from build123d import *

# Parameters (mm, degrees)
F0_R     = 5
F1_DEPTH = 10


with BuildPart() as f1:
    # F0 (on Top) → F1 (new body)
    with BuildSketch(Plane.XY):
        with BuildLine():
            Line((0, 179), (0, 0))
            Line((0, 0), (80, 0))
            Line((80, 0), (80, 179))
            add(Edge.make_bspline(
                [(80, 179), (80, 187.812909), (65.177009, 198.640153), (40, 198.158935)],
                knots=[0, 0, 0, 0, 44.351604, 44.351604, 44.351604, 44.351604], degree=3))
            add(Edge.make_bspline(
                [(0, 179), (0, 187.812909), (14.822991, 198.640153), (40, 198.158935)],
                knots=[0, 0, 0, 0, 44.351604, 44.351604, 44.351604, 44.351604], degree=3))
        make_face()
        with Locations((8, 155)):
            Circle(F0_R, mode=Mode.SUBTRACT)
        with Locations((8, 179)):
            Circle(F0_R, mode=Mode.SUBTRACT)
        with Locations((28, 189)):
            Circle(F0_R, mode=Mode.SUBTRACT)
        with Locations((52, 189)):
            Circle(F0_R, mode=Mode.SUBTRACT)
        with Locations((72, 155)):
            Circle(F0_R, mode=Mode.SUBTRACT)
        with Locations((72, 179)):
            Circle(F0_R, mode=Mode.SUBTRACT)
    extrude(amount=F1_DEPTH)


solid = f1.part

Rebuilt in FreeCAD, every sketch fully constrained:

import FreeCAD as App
import Part
import Sketcher
from FreeCAD import Vector

doc = App.newDocument("Part")
body = doc.addObject("PartDesign::Body", "Body")

# Sketch on XY plane
sketch1 = body.newObject("Sketcher::SketchObject", "Sketch")
sketch1.AttachmentSupport = (doc.getObject("XY_Plane"), [""])
sketch1.MapMode = "FlatFace"
sketch1.addGeometry([
    Part.LineSegment(Vector(0, 179, 0), Vector(0, 0, 0)),  # 0
    Part.LineSegment(Vector(0, 0, 0), Vector(80, 0, 0)),  # 1
    Part.LineSegment(Vector(80, 0, 0), Vector(80, 179, 0)),  # 2
    Part.BSplineCurve([Vector(80, 179, 0), Vector(80, 187.812909, 0), Vector(65.177009, 198.640153, 0), Vector(40, 198.158935, 0)], [4, 4], [0, 44.351604], False, 3, [1, 1, 1, 1], False),  # 3
    Part.BSplineCurve([Vector(0, 179, 0), Vector(0, 187.812909, 0), Vector(14.822991, 198.640153, 0), Vector(40, 198.158935, 0)], [4, 4], [0, 44.351604], False, 3, [1, 1, 1, 1], False),  # 4
    Part.Circle(Vector(8, 155, 0), Vector(0, 0, 1), 5),  # 5
    Part.Circle(Vector(72, 155, 0), Vector(0, 0, 1), 5),  # 6
    Part.Circle(Vector(8, 179, 0), Vector(0, 0, 1), 5),  # 7
    Part.Circle(Vector(28, 189, 0), Vector(0, 0, 1), 5),  # 8
    Part.Circle(Vector(72, 179, 0), Vector(0, 0, 1), 5),  # 9
    Part.Circle(Vector(52, 189, 0), Vector(0, 0, 1), 5),  # 10
], False)
sketch1.addConstraint([
    Sketcher.Constraint("Block", 3),
    Sketcher.Constraint("Block", 4),
    Sketcher.Constraint("Coincident", 0, 2, 1, 1),
    Sketcher.Constraint("Coincident", 1, 2, 2, 1),
    Sketcher.Constraint("Coincident", 2, 2, 3, 1),
    Sketcher.Constraint("Coincident", 4, 1, 0, 1),
    Sketcher.Constraint("Vertical", 0),
    Sketcher.Constraint("Horizontal", 1),
    Sketcher.Constraint("Vertical", 2),
    Sketcher.Constraint("Equal", 5, 6),
    Sketcher.Constraint("Equal", 6, 7),
    Sketcher.Constraint("Equal", 7, 8),
    Sketcher.Constraint("Equal", 8, 9),
    Sketcher.Constraint("Equal", 9, 10),
    Sketcher.Constraint("PointOnObject", 1, 2, -1),
    Sketcher.Constraint("Horizontal", 5, 3, 6, 3),
    Sketcher.Constraint("Horizontal", 7, 3, 9, 3),
    Sketcher.Constraint("Horizontal", 8, 3, 10, 3),
    Sketcher.Constraint("Horizontal", 9, 3, 2, 2),
    Sketcher.Constraint("Vertical", 5, 3, 7, 3),
    Sketcher.Constraint("Vertical", 6, 3, 9, 3),
    Sketcher.Constraint("Diameter", 5, 10.0),
    Sketcher.Constraint("DistanceX", -1, 1, 5, 3, 8.0),
    Sketcher.Constraint("DistanceY", -1, 1, 5, 3, 155.0),
    Sketcher.Constraint("DistanceX", -1, 1, 6, 3, 72.0),
    Sketcher.Constraint("DistanceX", -1, 1, 8, 3, 28.0),
    Sketcher.Constraint("DistanceY", -1, 1, 8, 3, 189.0),
    Sketcher.Constraint("DistanceX", -1, 1, 10, 3, 52.0),
])
pad1 = body.newObject("PartDesign::Pad", "Pad")
pad1.Profile = sketch1
pad1.Length = 10

doc.recompute()
